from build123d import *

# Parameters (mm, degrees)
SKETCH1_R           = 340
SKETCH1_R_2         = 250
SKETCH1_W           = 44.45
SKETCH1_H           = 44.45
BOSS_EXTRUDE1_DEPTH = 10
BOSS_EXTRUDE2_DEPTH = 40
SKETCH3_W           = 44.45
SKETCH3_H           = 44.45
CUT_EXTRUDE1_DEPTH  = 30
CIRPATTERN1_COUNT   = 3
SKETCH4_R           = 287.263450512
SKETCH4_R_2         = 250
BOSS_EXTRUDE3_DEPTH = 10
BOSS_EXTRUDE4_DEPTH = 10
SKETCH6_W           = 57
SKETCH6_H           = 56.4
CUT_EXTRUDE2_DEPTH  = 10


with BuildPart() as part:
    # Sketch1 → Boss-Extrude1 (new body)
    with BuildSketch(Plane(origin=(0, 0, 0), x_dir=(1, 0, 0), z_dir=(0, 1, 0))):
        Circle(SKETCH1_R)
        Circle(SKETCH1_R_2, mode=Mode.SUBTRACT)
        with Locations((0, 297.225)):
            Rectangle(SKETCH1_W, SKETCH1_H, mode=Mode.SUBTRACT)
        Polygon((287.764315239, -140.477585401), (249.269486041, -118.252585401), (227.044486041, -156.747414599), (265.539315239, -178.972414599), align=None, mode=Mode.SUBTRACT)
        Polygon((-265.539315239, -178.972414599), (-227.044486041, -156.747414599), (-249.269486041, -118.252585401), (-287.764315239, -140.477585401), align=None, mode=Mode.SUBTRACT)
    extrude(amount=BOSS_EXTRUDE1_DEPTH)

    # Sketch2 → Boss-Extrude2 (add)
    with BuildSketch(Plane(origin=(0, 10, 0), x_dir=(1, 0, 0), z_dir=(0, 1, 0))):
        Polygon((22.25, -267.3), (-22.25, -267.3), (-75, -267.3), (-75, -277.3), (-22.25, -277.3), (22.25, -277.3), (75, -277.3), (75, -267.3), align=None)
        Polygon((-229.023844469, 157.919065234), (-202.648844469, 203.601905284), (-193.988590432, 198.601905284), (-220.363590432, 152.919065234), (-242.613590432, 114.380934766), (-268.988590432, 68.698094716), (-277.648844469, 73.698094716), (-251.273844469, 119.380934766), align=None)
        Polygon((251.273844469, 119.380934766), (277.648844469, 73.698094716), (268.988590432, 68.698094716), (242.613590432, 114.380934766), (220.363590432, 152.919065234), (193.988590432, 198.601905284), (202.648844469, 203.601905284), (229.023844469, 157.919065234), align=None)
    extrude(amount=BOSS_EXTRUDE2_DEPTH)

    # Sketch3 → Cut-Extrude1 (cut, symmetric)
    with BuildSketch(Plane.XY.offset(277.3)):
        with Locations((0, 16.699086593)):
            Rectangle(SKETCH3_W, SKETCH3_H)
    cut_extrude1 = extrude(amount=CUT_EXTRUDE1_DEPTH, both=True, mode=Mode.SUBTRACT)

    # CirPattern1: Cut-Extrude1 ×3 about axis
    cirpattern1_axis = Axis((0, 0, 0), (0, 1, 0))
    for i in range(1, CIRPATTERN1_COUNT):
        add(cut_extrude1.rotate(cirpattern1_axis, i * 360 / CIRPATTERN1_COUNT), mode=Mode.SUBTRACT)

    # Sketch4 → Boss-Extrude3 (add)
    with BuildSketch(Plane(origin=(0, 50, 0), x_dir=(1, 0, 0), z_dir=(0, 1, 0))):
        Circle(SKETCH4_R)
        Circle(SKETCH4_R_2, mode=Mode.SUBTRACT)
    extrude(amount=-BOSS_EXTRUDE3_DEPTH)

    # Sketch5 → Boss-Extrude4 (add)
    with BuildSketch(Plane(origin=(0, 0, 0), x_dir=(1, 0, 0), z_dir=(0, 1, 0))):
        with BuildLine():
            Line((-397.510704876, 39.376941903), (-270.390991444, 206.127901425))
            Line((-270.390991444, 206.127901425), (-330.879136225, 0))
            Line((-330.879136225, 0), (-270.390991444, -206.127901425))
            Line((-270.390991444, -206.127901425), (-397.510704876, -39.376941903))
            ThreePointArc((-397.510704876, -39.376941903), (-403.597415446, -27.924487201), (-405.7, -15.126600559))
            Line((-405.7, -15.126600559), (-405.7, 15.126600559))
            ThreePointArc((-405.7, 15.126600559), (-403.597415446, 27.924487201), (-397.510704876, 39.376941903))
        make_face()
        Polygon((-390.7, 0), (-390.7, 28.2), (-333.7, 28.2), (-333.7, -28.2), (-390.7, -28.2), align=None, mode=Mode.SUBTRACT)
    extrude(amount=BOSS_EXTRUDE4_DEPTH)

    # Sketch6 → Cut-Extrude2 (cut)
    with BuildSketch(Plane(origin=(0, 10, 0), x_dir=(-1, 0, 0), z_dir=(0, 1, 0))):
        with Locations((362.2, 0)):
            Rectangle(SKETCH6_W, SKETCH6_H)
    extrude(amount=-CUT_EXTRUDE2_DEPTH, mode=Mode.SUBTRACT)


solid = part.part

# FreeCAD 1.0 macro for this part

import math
import FreeCAD as App
import Part
import Sketcher
Q = App.Units.Quantity

doc = App.newDocument("Part")
params = doc.addObject("Spreadsheet::Sheet", "Params")
for row, (alias, value) in enumerate([
    ("sketch1_diameter", "680 mm"),
    ("sketch1_diameter2", "500 mm"),
    ("sketch1_width", "44.45 mm"),
    ("sketch1_length", "44.45 mm"),
    ("pad1_length", "10 mm"),
    ("sketch2_width", "150 mm"),
    ("sketch2_height", "10 mm"),
    ("sketch2_length", "10 mm"),
    ("sketch2_length2", "44.5 mm"),
    ("pad2_length", "40 mm"),
    ("sketch3_width", "44.45 mm"),
    ("pocket1_length", "60 mm"),
    ("sketch4_diameter", "500 mm"),
    ("pad3_length", "10 mm"),
    ("sketch5_radius", "40 mm"),
    ("sketch5_width", "57 mm"),
    ("sketch5_height", "56.4 mm"),
    ("pad4_length", "10 mm"),
    ("sketch6_width", "57 mm"),
    ("sketch6_height", "56.4 mm"),
    ("pocket2_length", "10 mm"),
], start=1):
    params.set(f"A{row}", alias)
    params.set(f"B{row}", "=" + value)
    params.setAlias(f"B{row}", alias)

body = doc.addObject("PartDesign::Body", "Body")

# Sketch on XZ plane
sketch1 = body.newObject("Sketcher::SketchObject", "Sketch")
sketch1.AttachmentSupport = (doc.getObject("XZ_Plane"), [""])
sketch1.MapMode = "FlatFace"
sketch1.addGeometry([
    Part.Circle(App.Vector(0, 0, 0), App.Vector(0, 0, 1), 340),  # 0
    Part.LineSegment(App.Vector(-227, 157, 0), App.Vector(-266, 179, 0)),  # 1
    Part.LineSegment(App.Vector(-266, 179, 0), App.Vector(-288, 140, 0)),  # 2
    Part.LineSegment(App.Vector(-288, 140, 0), App.Vector(-249, 118, 0)),  # 3
    Part.LineSegment(App.Vector(-249, 118, 0), App.Vector(-227, 157, 0)),  # 4
    Part.LineSegment(App.Vector(249, 118, 0), App.Vector(288, 140, 0)),  # 5
    Part.LineSegment(App.Vector(288, 140, 0), App.Vector(266, 179, 0)),  # 6
    Part.LineSegment(App.Vector(266, 179, 0), App.Vector(227, 157, 0)),  # 7
    Part.LineSegment(App.Vector(227, 157, 0), App.Vector(249, 118, 0)),  # 8
    Part.Circle(App.Vector(0, 0, 0), App.Vector(0, 0, 1), 250),  # 9
    Part.LineSegment(App.Vector(22, -275, 0), App.Vector(-22, -275, 0)),  # 10
    Part.LineSegment(App.Vector(-22, -275, 0), App.Vector(-22, -319, 0)),  # 11
    Part.LineSegment(App.Vector(-22, -319, 0), App.Vector(22, -319, 0)),  # 12
    Part.LineSegment(App.Vector(22, -319, 0), App.Vector(22, -275, 0)),  # 13
], False)
sketch1.addConstraint([
    Sketcher.Constraint("Coincident", 1, 2, 2, 1),
    Sketcher.Constraint("Coincident", 2, 2, 3, 1),
    Sketcher.Constraint("Coincident", 3, 2, 4, 1),
    Sketcher.Constraint("Coincident", 4, 2, 1, 1),
    Sketcher.Constraint("Coincident", 5, 2, 6, 1),
    Sketcher.Constraint("Coincident", 6, 2, 7, 1),
    Sketcher.Constraint("Coincident", 7, 2, 8, 1),
    Sketcher.Constraint("Coincident", 8, 2, 5, 1),
    Sketcher.Constraint("Coincident", 10, 2, 11, 1),
    Sketcher.Constraint("Coincident", 11, 2, 12, 1),
    Sketcher.Constraint("Coincident", 12, 2, 13, 1),
    Sketcher.Constraint("Coincident", 13, 2, 10, 1),
    Sketcher.Constraint("Horizontal", 10),
    Sketcher.Constraint("Vertical", 11),
    Sketcher.Constraint("Horizontal", 12),
    Sketcher.Constraint("Vertical", 13),
    Sketcher.Constraint("Coincident", 0, 3, -1, 1),
    Sketcher.Constraint("Coincident", 9, 3, -1, 1),
    Sketcher.Constraint("Symmetric", 2, 2, 5, 2, -2),
    Sketcher.Constraint("Symmetric", 1, 2, 6, 2, -2),
    Sketcher.Constraint("Symmetric", 4, 2, 7, 2, -2),
    Sketcher.Constraint("Symmetric", 3, 2, 8, 2, -2),
    Sketcher.Constraint("Perpendicular", 1, 2),
    Sketcher.Constraint("Perpendicular", 2, 3),
    Sketcher.Constraint("Perpendicular", 3, 4),
    Sketcher.Constraint("Equal", 12, 11),
    Sketcher.Constraint("Equal", 1, 2),
    Sketcher.Constraint("Diameter", 0, 680.0),
    Sketcher.Constraint("Diameter", 9, 500.0),
    Sketcher.Constraint("Angle", 1, Q("150 deg")),
    Sketcher.Constraint("DistanceY", 10, 2, -1, 1, 275.0),
    Sketcher.Constraint("DistanceX", 10, 2, 10, 1, 44.45),
    Sketcher.Constraint("Distance", 1, 44.45),
    Sketcher.Constraint("DistanceX", 10, 2, -1, 1, 22.225),
    Sketcher.Constraint("DistanceX", 4, 2, 5, 2, 514.808801),
    Sketcher.Constraint("DistanceY", -1, 1, 1, 2, 178.972415),
])
sketch1.setExpression("Constraints[27]", "Params.sketch1_diameter")
sketch1.setExpression("Constraints[28]", "Params.sketch1_diameter2")
sketch1.setExpression("Constraints[31]", "Params.sketch1_width")
sketch1.setExpression("Constraints[32]", "Params.sketch1_length")
pad1 = body.newObject("PartDesign::Pad", "Pad")
pad1.Profile = sketch1
pad1.setExpression("Length", "Params.pad1_length")
pad1.Reversed = True

# Sketch on XZ plane
sketch2 = body.newObject("Sketcher::SketchObject", "Sketch001")
sketch2.AttachmentSupport = (doc.getObject("XZ_Plane"), [""])
sketch2.MapMode = "FlatFace"
sketch2.AttachmentOffset = App.Placement(App.Vector(0, 0, -10), App.Rotation())
sketch2.addGeometry([
    Part.LineSegment(App.Vector(-75, 267, 0), App.Vector(-75, 277, 0)),  # 0
    Part.LineSegment(App.Vector(-75, 277, 0), App.Vector(75, 277, 0)),  # 1
    Part.LineSegment(App.Vector(75, 277, 0), App.Vector(75, 267, 0)),  # 2
    Part.LineSegment(App.Vector(75, 267, 0), App.Vector(-75, 267, 0)),  # 3
    Part.LineSegment(App.Vector(-203, -204, 0), App.Vector(-229, -158, 0)),  # 4
    Part.LineSegment(App.Vector(-229, -158, 0), App.Vector(-251, -119, 0)),  # 5
    Part.LineSegment(App.Vector(-251, -119, 0), App.Vector(-278, -74, 0)),  # 6
    Part.LineSegment(App.Vector(-278, -74, 0), App.Vector(-269, -69, 0)),  # 7
    Part.LineSegment(App.Vector(-269, -69, 0), App.Vector(-243, -114, 0)),  # 8
    Part.LineSegment(App.Vector(-243, -114, 0), App.Vector(-220, -153, 0)),  # 9
    Part.LineSegment(App.Vector(-220, -153, 0), App.Vector(-194, -199, 0)),  # 10
    Part.LineSegment(App.Vector(-194, -199, 0), App.Vector(-203, -204, 0)),  # 11
    Part.LineSegment(App.Vector(278, -74, 0), App.Vector(251, -119, 0)),  # 12
    Part.LineSegment(App.Vector(251, -119, 0), App.Vector(229, -158, 0)),  # 13
    Part.LineSegment(App.Vector(229, -158, 0), App.Vector(203, -204, 0)),  # 14
    Part.LineSegment(App.Vector(203, -204, 0), App.Vector(194, -199, 0)),  # 15
    Part.LineSegment(App.Vector(194, -199, 0), App.Vector(220, -153, 0)),  # 16
    Part.LineSegment(App.Vector(220, -153, 0), App.Vector(243, -114, 0)),  # 17
    Part.LineSegment(App.Vector(243, -114, 0), App.Vector(269, -69, 0)),  # 18
    Part.LineSegment(App.Vector(269, -69, 0), App.Vector(278, -74, 0)),  # 19
], False)
sketch2.addConstraint([
    Sketcher.Constraint("Coincident", 0, 2, 1, 1),
    Sketcher.Constraint("Coincident", 1, 2, 2, 1),
    Sketcher.Constraint("Coincident", 2, 2, 3, 1),
    Sketcher.Constraint("Coincident", 3, 2, 0, 1),
    Sketcher.Constraint("Coincident", 4, 2, 5, 1),
    Sketcher.Constraint("Coincident", 5, 2, 6, 1),
    Sketcher.Constraint("Coincident", 6, 2, 7, 1),
    Sketcher.Constraint("Coincident", 7, 2, 8, 1),
    Sketcher.Constraint("Coincident", 8, 2, 9, 1),
    Sketcher.Constraint("Coincident", 9, 2, 10, 1),
    Sketcher.Constraint("Coincident", 10, 2, 11, 1),
    Sketcher.Constraint("Coincident", 11, 2, 4, 1),
    Sketcher.Constraint("Coincident", 12, 2, 13, 1),
    Sketcher.Constraint("Coincident", 13, 2, 14, 1),
    Sketcher.Constraint("Coincident", 14, 2, 15, 1),
    Sketcher.Constraint("Coincident", 15, 2, 16, 1),
    Sketcher.Constraint("Coincident", 16, 2, 17, 1),
    Sketcher.Constraint("Coincident", 17, 2, 18, 1),
    Sketcher.Constraint("Coincident", 18, 2, 19, 1),
    Sketcher.Constraint("Coincident", 19, 2, 12, 1),
    Sketcher.Constraint("Vertical", 0),
    Sketcher.Constraint("Horizontal", 1),
    Sketcher.Constraint("Vertical", 2),
    Sketcher.Constraint("Horizontal", 3),
    Sketcher.Constraint("Symmetric", 5, 2, 12, 2, -2),
    Sketcher.Constraint("Symmetric", 4, 2, 13, 2, -2),
    Sketcher.Constraint("Symmetric", 11, 2, 14, 2, -2),
    Sketcher.Constraint("Symmetric", 10, 2, 15, 2, -2),
    Sketcher.Constraint("Symmetric", 9, 2, 16, 2, -2),
    Sketcher.Constraint("Symmetric", 8, 2, 17, 2, -2),
    Sketcher.Constraint("Symmetric", 7, 2, 18, 2, -2),
    Sketcher.Constraint("Symmetric", 6, 2, 19, 2, -2),
    Sketcher.Constraint("Parallel", 4, 5),
    Sketcher.Constraint("Parallel", 5, 6),
    Sketcher.Constraint("Perpendicular", 6, 7),
    Sketcher.Constraint("Perpendicular", 7, 8),
    Sketcher.Constraint("Parallel", 8, 9),
    Sketcher.Constraint("Parallel", 9, 10),
    Sketcher.Constraint("Perpendicular", 10, 11),
    Sketcher.Constraint("Equal", 4, 6),
    Sketcher.Constraint("Equal", 6, 8),
    Sketcher.Constraint("Equal", 5, 9),
    Sketcher.Constraint("DistanceX", 1, 1, 1, 2, 150.0),
    Sketcher.Constraint("DistanceY", 0, 1, 0, 2, 10.0),
    Sketcher.Constraint("Angle", 4, Q("120 deg")),
    Sketcher.Constraint("Distance", 7, 10.0),
    Sketcher.Constraint("DistanceX", 0, 2, -1, 1, 75.0),
    Sketcher.Constraint("DistanceX", 7, 2, 10, 2, 75.0),
    Sketcher.Constraint("Distance", 5, 44.5),
    Sketcher.Constraint("DistanceY", -1, 1, 0, 2, 277.3),
    Sketcher.Constraint("DistanceX", 7, 2, -1, 1, 268.98859),
    Sketcher.Constraint("DistanceY", 4, 2, -1, 1, 157.919065),
])
sketch2.setExpression("Constraints[42]", "Params.sketch2_width")
sketch2.setExpression("Constraints[43]", "Params.sketch2_height")
sketch2.setExpression("Constraints[45]", "Params.sketch2_length")
sketch2.setExpression("Constraints[48]", "Params.sketch2_length2")
pad2 = body.newObject("PartDesign::Pad", "Pad001")
pad2.Profile = sketch2
pad2.setExpression("Length", "Params.pad2_length")
pad2.Reversed = True

# Sketch on XY plane
sketch3 = body.newObject("Sketcher::SketchObject", "Sketch002")
sketch3.AttachmentSupport = (doc.getObject("XY_Plane"), [""])
sketch3.MapMode = "FlatFace"
sketch3.AttachmentOffset = App.Placement(App.Vector(0, 0, 277.3), App.Rotation())
sketch3.addGeometry([
    Part.LineSegment(App.Vector(-22, 39, 0), App.Vector(-22, -6, 0)),
    Part.LineSegment(App.Vector(-22, -6, 0), App.Vector(22, -6, 0)),
    Part.LineSegment(App.Vector(22, -6, 0), App.Vector(22, 39, 0)),
    Part.LineSegment(App.Vector(22, 39, 0), App.Vector(-22, 39, 0)),
], False)
sketch3.addConstraint([
    Sketcher.Constraint("Coincident", 0, 2, 1, 1),
    Sketcher.Constraint("Coincident", 1, 2, 2, 1),
    Sketcher.Constraint("Coincident", 2, 2, 3, 1),
    Sketcher.Constraint("Coincident", 3, 2, 0, 1),
    Sketcher.Constraint("Vertical", 0),
    Sketcher.Constraint("Horizontal", 1),
    Sketcher.Constraint("Vertical", 2),
    Sketcher.Constraint("Horizontal", 3),
    Sketcher.Constraint("Equal", 3, 0),
    Sketcher.Constraint("DistanceX", 1, 1, 1, 2, 44.45),
    Sketcher.Constraint("DistanceX", 0, 2, -1, 1, 22.225),
    Sketcher.Constraint("DistanceY", 0, 2, -1, 1, 5.525913),
])
sketch3.setExpression("Constraints[9]", "Params.sketch3_width")
pocket1 = body.newObject("PartDesign::Pocket", "Pocket")
pocket1.Profile = sketch3
pocket1.setExpression("Length", "Params.pocket1_length")
pocket1.Midplane = True
doc.recompute()

polarpattern = body.newObject("PartDesign::PolarPattern", "PolarPattern")
polarpattern.Originals = [pocket1]
polarpattern.Axis = (doc.getObject("Y_Axis"), [""])
polarpattern.Angle = 360
polarpattern.Occurrences = 3
body.Tip = polarpattern

# Sketch on XZ plane
sketch4 = body.newObject("Sketcher::SketchObject", "Sketch003")
sketch4.AttachmentSupport = (doc.getObject("XZ_Plane"), [""])
sketch4.MapMode = "FlatFace"
sketch4.AttachmentOffset = App.Placement(App.Vector(0, 0, -50), App.Rotation())
sketch4.addGeometry([
    Part.Circle(App.Vector(0, 0, 0), App.Vector(0, 0, 1), 287),
    Part.Circle(App.Vector(0, 0, 0), App.Vector(0, 0, 1), 250),
], False)
sketch4.addConstraint([
    Sketcher.Constraint("Coincident", 0, 3, -1, 1),
    Sketcher.Constraint("Coincident", 1, 3, -1, 1),
    Sketcher.Constraint("Diameter", 1, 500.0),
    Sketcher.Constraint("Diameter", 0, 574.526901),
])
sketch4.setExpression("Constraints[2]", "Params.sketch4_diameter")
pad3 = body.newObject("PartDesign::Pad", "Pad002")
pad3.Profile = sketch4
pad3.setExpression("Length", "Params.pad3_length")

# Sketch on XZ plane
sketch5 = body.newObject("Sketcher::SketchObject", "Sketch004")
sketch5.AttachmentSupport = (doc.getObject("XZ_Plane"), [""])
sketch5.MapMode = "FlatFace"
sketch5.addGeometry([
    Part.LineSegment(App.Vector(-270, -206, 0), App.Vector(-398, -39, 0)),  # 0
    Part.ArcOfCircle(Part.Circle(App.Vector(-366, -15, 0), App.Vector(0, 0, 1), 40), math.radians(-180), math.radians(-143)),  # 1
    Part.LineSegment(App.Vector(-406, -15, 0), App.Vector(-406, 15, 0)),  # 2
    Part.ArcOfCircle(Part.Circle(App.Vector(-366, 15, 0), App.Vector(0, 0, 1), 40), math.radians(143), math.radians(180)),  # 3
    Part.LineSegment(App.Vector(-398, 39, 0), App.Vector(-270, 206, 0)),  # 4
    Part.LineSegment(App.Vector(-270, 206, 0), App.Vector(-331, 0, 0)),  # 5
    Part.LineSegment(App.Vector(-331, 0, 0), App.Vector(-270, -206, 0)),  # 6
    Part.LineSegment(App.Vector(-391, -28, 0), App.Vector(-334, -28, 0)),  # 7
    Part.LineSegment(App.Vector(-334, -28, 0), App.Vector(-334, 28, 0)),  # 8
    Part.LineSegment(App.Vector(-334, 28, 0), App.Vector(-391, 28, 0)),  # 9
    Part.LineSegment(App.Vector(-391, 28, 0), App.Vector(-391, -28, 0)),  # 10
], False)
sketch5.addConstraint([
    Sketcher.Constraint("Tangent", 0, 2, 1, 2),
    Sketcher.Constraint("Tangent", 1, 1, 2, 1),
    Sketcher.Constraint("Tangent", 2, 2, 3, 2),
    Sketcher.Constraint("Tangent", 3, 1, 4, 1),
    Sketcher.Constraint("Coincident", 4, 2, 5, 1),
    Sketcher.Constraint("Coincident", 5, 2, 6, 1),
    Sketcher.Constraint("Coincident", 6, 2, 0, 1),
    Sketcher.Constraint("Coincident", 7, 2, 8, 1),
    Sketcher.Constraint("Coincident", 8, 2, 9, 1),
    Sketcher.Constraint("Coincident", 9, 2, 10, 1),
    Sketcher.Constraint("Coincident", 10, 2, 7, 1),
    Sketcher.Constraint("Vertical", 2),
    Sketcher.Constraint("Horizontal", 7),
    Sketcher.Constraint("Vertical", 8),
    Sketcher.Constraint("Horizontal", 9),
    Sketcher.Constraint("Vertical", 10),
    Sketcher.Constraint("Equal", 1, 3),
    Sketcher.Constraint("Symmetric", 0, 2, 3, 1, -1),
    Sketcher.Constraint("PointOnObject", 5, 2, -1),
    Sketcher.Constraint("Vertical", 4, 2, 6, 2),
    Sketcher.Constraint("Radius", 1, 40.0),
    Sketcher.Constraint("DistanceX", 7, 1, 7, 2, 57.0),
    Sketcher.Constraint("DistanceY", 8, 1, 8, 2, 56.4),
    Sketcher.Constraint("DistanceX", 1, 3, 7, 2, 32.0),
    Sketcher.Constraint("DistanceX", 1, 3, -1, 1, 365.7),
    Sketcher.Constraint("DistanceY", 7, 2, -1, 1, 28.2),
    Sketcher.Constraint("DistanceY", 2, 1, 2, 2, 30.253201),
    Sketcher.Constraint("DistanceY", -1, 1, 4, 2, 206.127901),
    Sketcher.Constraint("Distance", 0, 209.67905),
    Sketcher.Constraint("DistanceX", 0, 2, 5, 2, 66.631569),
])
sketch5.setExpression("Constraints[20]", "Params.sketch5_radius")
sketch5.setExpression("Constraints[21]", "Params.sketch5_width")
sketch5.setExpression("Constraints[22]", "Params.sketch5_height")
pad4 = body.newObject("PartDesign::Pad", "Pad003")
pad4.Profile = sketch5
pad4.setExpression("Length", "Params.pad4_length")
pad4.Reversed = True

# Sketch on XZ plane
sketch6 = body.newObject("Sketcher::SketchObject", "Sketch005")
sketch6.AttachmentSupport = (doc.getObject("XZ_Plane"), [""])
sketch6.MapMode = "FlatFace"
sketch6.AttachmentOffset = App.Placement(App.Vector(0, 0, -10), App.Rotation())
sketch6.addGeometry([
    Part.LineSegment(App.Vector(-334, 28, 0), App.Vector(-334, -28, 0)),
    Part.LineSegment(App.Vector(-334, -28, 0), App.Vector(-391, -28, 0)),
    Part.LineSegment(App.Vector(-391, -28, 0), App.Vector(-391, 28, 0)),
    Part.LineSegment(App.Vector(-391, 28, 0), App.Vector(-334, 28, 0)),
], False)
sketch6.addConstraint([
    Sketcher.Constraint("Coincident", 0, 2, 1, 1),
    Sketcher.Constraint("Coincident", 1, 2, 2, 1),
    Sketcher.Constraint("Coincident", 2, 2, 3, 1),
    Sketcher.Constraint("Coincident", 3, 2, 0, 1),
    Sketcher.Constraint("Vertical", 0),
    Sketcher.Constraint("Horizontal", 1),
    Sketcher.Constraint("Vertical", 2),
    Sketcher.Constraint("Horizontal", 3),
    Sketcher.Constraint("DistanceX", 1, 2, 1, 1, 57.0),
    Sketcher.Constraint("DistanceY", 0, 2, 0, 1, 56.4),
    Sketcher.Constraint("DistanceX", 0, 2, -1, 1, 333.7),
    Sketcher.Constraint("DistanceY", 0, 2, -1, 1, 28.2),
])
sketch6.setExpression("Constraints[8]", "Params.sketch6_width")
sketch6.setExpression("Constraints[9]", "Params.sketch6_height")
pocket2 = body.newObject("PartDesign::Pocket", "Pocket001")
pocket2.Profile = sketch6
pocket2.setExpression("Length", "Params.pocket2_length")
pocket2.Reversed = True

doc.recompute()
